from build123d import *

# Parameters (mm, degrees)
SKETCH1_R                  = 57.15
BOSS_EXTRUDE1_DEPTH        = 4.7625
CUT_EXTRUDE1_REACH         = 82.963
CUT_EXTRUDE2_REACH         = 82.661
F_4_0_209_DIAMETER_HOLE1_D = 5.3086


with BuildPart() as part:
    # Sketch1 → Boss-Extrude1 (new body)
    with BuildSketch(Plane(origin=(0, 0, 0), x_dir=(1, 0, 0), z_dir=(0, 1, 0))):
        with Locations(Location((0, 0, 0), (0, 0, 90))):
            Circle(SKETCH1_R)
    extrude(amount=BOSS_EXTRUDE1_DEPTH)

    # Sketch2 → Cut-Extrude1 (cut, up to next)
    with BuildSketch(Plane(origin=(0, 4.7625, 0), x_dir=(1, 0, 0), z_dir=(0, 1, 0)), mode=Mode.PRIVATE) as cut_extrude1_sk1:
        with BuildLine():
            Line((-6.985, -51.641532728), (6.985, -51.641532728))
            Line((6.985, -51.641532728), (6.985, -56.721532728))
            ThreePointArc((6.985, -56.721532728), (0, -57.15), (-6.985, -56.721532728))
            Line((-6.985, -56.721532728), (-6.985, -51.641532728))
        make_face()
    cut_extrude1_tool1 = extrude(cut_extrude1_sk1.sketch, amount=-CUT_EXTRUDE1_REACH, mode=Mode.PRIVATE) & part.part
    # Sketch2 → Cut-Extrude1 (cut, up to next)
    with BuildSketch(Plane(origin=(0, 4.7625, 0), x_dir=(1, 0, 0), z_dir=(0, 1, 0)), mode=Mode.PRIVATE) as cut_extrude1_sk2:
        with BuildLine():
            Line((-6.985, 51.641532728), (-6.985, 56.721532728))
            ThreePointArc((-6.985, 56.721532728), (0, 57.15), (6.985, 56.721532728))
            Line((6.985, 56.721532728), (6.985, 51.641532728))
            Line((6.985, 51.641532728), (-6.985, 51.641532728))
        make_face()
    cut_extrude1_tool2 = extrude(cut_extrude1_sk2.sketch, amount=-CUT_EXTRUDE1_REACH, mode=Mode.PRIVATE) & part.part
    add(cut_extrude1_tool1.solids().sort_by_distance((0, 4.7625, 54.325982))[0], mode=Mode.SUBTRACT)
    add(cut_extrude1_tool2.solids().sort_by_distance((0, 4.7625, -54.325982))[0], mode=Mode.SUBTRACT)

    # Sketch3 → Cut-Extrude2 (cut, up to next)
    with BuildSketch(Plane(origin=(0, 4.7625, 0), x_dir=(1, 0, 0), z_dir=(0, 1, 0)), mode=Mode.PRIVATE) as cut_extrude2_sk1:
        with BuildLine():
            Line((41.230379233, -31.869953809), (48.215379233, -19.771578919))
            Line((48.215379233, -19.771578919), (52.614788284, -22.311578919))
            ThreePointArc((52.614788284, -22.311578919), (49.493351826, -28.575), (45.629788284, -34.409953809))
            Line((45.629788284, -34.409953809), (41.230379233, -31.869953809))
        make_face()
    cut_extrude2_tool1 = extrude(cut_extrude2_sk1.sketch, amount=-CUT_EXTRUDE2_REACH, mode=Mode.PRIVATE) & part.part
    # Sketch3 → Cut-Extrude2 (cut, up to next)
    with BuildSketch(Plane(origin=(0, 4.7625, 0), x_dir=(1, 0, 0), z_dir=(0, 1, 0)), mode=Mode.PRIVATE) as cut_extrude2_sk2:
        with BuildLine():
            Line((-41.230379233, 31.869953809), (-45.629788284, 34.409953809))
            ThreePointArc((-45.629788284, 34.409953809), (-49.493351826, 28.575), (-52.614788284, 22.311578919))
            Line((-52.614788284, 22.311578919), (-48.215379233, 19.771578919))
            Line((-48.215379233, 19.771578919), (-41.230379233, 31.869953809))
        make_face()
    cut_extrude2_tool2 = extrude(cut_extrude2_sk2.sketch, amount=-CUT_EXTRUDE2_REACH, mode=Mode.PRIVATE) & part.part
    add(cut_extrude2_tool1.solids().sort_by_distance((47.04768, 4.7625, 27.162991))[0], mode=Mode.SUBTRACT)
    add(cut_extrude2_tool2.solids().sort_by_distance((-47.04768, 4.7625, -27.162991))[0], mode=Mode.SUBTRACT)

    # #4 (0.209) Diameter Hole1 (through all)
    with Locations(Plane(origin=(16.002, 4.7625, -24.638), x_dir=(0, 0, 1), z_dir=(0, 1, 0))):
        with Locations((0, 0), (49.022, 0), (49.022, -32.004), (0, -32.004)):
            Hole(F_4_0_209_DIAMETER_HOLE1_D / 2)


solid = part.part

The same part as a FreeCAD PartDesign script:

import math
import FreeCAD as App
import Part
import Sketcher

V = App.Vector
Q = App.Units.Quantity

doc = App.newDocument("Part")
body = doc.addObject("PartDesign::Body", "Body")

# Sketch on XZ plane
sketch1 = body.newObject("Sketcher::SketchObject", "Sketch")
sketch1.AttachmentSupport = (doc.getObject("XZ_Plane"), [""])
sketch1.MapMode = "FlatFace"
sketch1.addGeometry(Part.Circle(V(0, 0, 0), V(0, 0, 1), 57), False)
sketch1.addConstraint([
    Sketcher.Constraint("Coincident", 0, 3, -1, 1),
    Sketcher.Constraint("Diameter", 0, Q("4.5 in")),
])
pad1 = body.newObject("PartDesign::Pad", "Pad")
pad1.Profile = sketch1
pad1.Length = Q("0.1875 in")
pad1.Reversed = True

# Sketch on XZ plane
sketch2 = body.newObject("Sketcher::SketchObject", "Sketch001")
sketch2.AttachmentSupport = (doc.getObject("XZ_Plane"), [""])
sketch2.MapMode = "FlatFace"
sketch2.AttachmentOffset = App.Placement(V(0, 0, -0.1875 * 25.4), App.Rotation())
sketch2.addGeometry([
    Part.LineSegment(V(7, 52, 0), V(-7, 52, 0)),
    Part.LineSegment(V(-7, 52, 0), V(-7, 57, 0)),
    Part.ArcOfCircle(Part.Circle(V(0, 0, 0), V(0, 0, 1), 57), math.radians(82.98), math.radians(97.02)),
    Part.LineSegment(V(7, 57, 0), V(7, 52, 0)),
], False)
sketch2.addConstraint([
    Sketcher.Constraint("Coincident", 0, 2, 1, 1),
    Sketcher.Constraint("Coincident", 1, 2, 2, 2),
    Sketcher.Constraint("Coincident", 2, 1, 3, 1),
    Sketcher.Constraint("Coincident", 3, 2, 0, 1),
    Sketcher.Constraint("Horizontal", 0),
    Sketcher.Constraint("Vertical", 1),
    Sketcher.Constraint("Vertical", 3),
    Sketcher.Constraint("Coincident", 2, 3, -1, 1),
    Sketcher.Constraint("Horizontal", 1, 2, 2, 1),
    Sketcher.Constraint("Radius", 2, Q("2.25 in")),
    Sketcher.Constraint("DistanceY", 1, 1, 1, 2, Q("0.2 in")),
    Sketcher.Constraint("DistanceX", 0, 2, 0, 1, Q("0.55 in")),
])
pocket1 = body.newObject("PartDesign::Pocket", "Pocket")
pocket1.Profile = sketch2
pocket1.Type = "UpToFirst"
pocket1.Reversed = True

# Sketch on XZ plane
sketch3 = body.newObject("Sketcher::SketchObject", "Sketch002")
sketch3.AttachmentSupport = (doc.getObject("XZ_Plane"), [""])
sketch3.MapMode = "FlatFace"
sketch3.AttachmentOffset = App.Placement(V(0, 0, -0.1875 * 25.4), App.Rotation())
sketch3.addGeometry([
    Part.LineSegment(V(-7, -57, 0), V(-7, -52, 0)),
    Part.LineSegment(V(-7, -52, 0), V(7, -52, 0)),
    Part.LineSegment(V(7, -52, 0), V(7, -57, 0)),
    Part.ArcOfCircle(Part.Circle(V(0, 0, 0), V(0, 0, 1), 57), math.radians(-97.02), math.radians(-82.98)),
], False)
sketch3.addConstraint([
    Sketcher.Constraint("Coincident", 0, 2, 1, 1),
    Sketcher.Constraint("Coincident", 1, 2, 2, 1),
    Sketcher.Constraint("Coincident", 2, 2, 3, 2),
    Sketcher.Constraint("Coincident", 3, 1, 0, 1),
    Sketcher.Constraint("Vertical", 0),
    Sketcher.Constraint("Horizontal", 1),
    Sketcher.Constraint("Vertical", 2),
    Sketcher.Constraint("Coincident", 3, 3, -1, 1),
    Sketcher.Constraint("Horizontal", 2, 2, 3, 1),
    Sketcher.Constraint("Radius", 3, Q("2.25 in")),
    Sketcher.Constraint("DistanceY", 0, 1, 0, 2, Q("0.2 in")),
    Sketcher.Constraint("DistanceX", 1, 1, 1, 2, Q("0.55 in")),
])
pocket2 = body.newObject("PartDesign::Pocket", "Pocket001")
pocket2.Profile = sketch3
pocket2.Type = "UpToFirst"
pocket2.Reversed = True

# Sketch on XZ plane
sketch4 = body.newObject("Sketcher::SketchObject", "Sketch003")
sketch4.AttachmentSupport = (doc.getObject("XZ_Plane"), [""])
sketch4.MapMode = "FlatFace"
sketch4.AttachmentOffset = App.Placement(V(0, 0, -0.1875 * 25.4), App.Rotation())
sketch4.addGeometry([
    Part.LineSegment(V(48, 20, 0), V(41, 32, 0)),
    Part.LineSegment(V(41, 32, 0), V(46, 34, 0)),
    Part.ArcOfCircle(Part.Circle(V(0, 0, 0), V(0, 0, 1), 57), math.radians(22.98), math.radians(37.02)),
    Part.LineSegment(V(53, 22, 0), V(48, 20, 0)),
], False)
sketch4.addConstraint([
    Sketcher.Constraint("Coincident", 0, 2, 1, 1),
    Sketcher.Constraint("Coincident", 1, 2, 2, 2),
    Sketcher.Constraint("Coincident", 2, 1, 3, 1),
    Sketcher.Constraint("Coincident", 3, 2, 0, 1),
    Sketcher.Constraint("Coincident", 2, 3, -1, 1),
    Sketcher.Constraint("Perpendicular", 0, 1),
    Sketcher.Constraint("Parallel", 1, 3),
    Sketcher.Constraint("Equal", 1, 3),
    Sketcher.Constraint("Radius", 2, Q("2.25 in")),
    Sketcher.Constraint("Angle", 0, Q("120 deg")),
    Sketcher.Constraint("Distance", 1, Q("0.2 in")),
    Sketcher.Constraint("Distance", 0, Q("0.55 in")),
])
pocket3 = body.newObject("PartDesign::Pocket", "Pocket002")
pocket3.Profile = sketch4
pocket3.Type = "UpToFirst"
pocket3.Reversed = True

# Sketch on XZ plane
sketch5 = body.newObject("Sketcher::SketchObject", "Sketch004")
sketch5.AttachmentSupport = (doc.getObject("XZ_Plane"), [""])
sketch5.MapMode = "FlatFace"
sketch5.AttachmentOffset = App.Placement(V(0, 0, -0.1875 * 25.4), App.Rotation())
sketch5.addGeometry([
    Part.LineSegment(V(-41, -32, 0), V(-46, -34, 0)),
    Part.ArcOfCircle(Part.Circle(V(0, 0, 0), V(0, 0, 1), 57), math.radians(-157.02), math.radians(-142.98)),
    Part.LineSegment(V(-53, -22, 0), V(-48, -20, 0)),
    Part.LineSegment(V(-48, -20, 0), V(-41, -32, 0)),
], False)
sketch5.addConstraint([
    Sketcher.Constraint("Coincident", 0, 2, 1, 2),
    Sketcher.Constraint("Coincident", 1, 1, 2, 1),
    Sketcher.Constraint("Coincident", 2, 2, 3, 1),
    Sketcher.Constraint("Coincident", 3, 2, 0, 1),
    Sketcher.Constraint("Coincident", 1, 3, -1, 1),
    Sketcher.Constraint("Parallel", 0, 2),
    Sketcher.Constraint("Perpendicular", 2, 3),
    Sketcher.Constraint("Equal", 0, 2),
    Sketcher.Constraint("Radius", 1, Q("2.25 in")),
    Sketcher.Constraint("Angle", 0, Q("-150 deg")),
    Sketcher.Constraint("Distance", 0, Q("0.2 in")),
    Sketcher.Constraint("Distance", 3, Q("0.55 in")),
])
pocket4 = body.newObject("PartDesign::Pocket", "Pocket003")
pocket4.Profile = sketch5
pocket4.Type = "UpToFirst"
pocket4.Reversed = True

# Sketch on XZ plane
sketch6 = body.newObject("Sketcher::SketchObject", "Sketch005")
sketch6.AttachmentSupport = (doc.getObject("XZ_Plane"), [""])
sketch6.MapMode = "FlatFace"
sketch6.AttachmentOffset = App.Placement(V(0, 0, -0.1875 * 25.4), App.Rotation())
sketch6.addGeometry([
    Part.Circle(V(16, -24.6, 0), V(0, 0, 1), 2.7),
    Part.Circle(V(16, 24.4, 0), V(0, 0, 1), 2.7),
    Part.Circle(V(-16, 24.4, 0), V(0, 0, 1), 2.7),
    Part.Circle(V(-16, -24.6, 0), V(0, 0, 1), 2.7),
], False)
sketch6.addConstraint([
    Sketcher.Constraint("Equal", 0, 1),
    Sketcher.Constraint("Equal", 1, 2),
    Sketcher.Constraint("Equal", 2, 3),
    Sketcher.Constraint("Symmetric", 1, 3, 2, 3, -2),
    Sketcher.Constraint("Symmetric", 0, 3, 3, 3, -2),
    Sketcher.Constraint("Vertical", 0, 3, 1, 3),
    Sketcher.Constraint("Diameter", 0, Q("0.209 in")),
    Sketcher.Constraint("DistanceX", -1, 1, 0, 3, Q("0.63 in")),
    Sketcher.Constraint("DistanceY", 0, 3, -1, 1, Q("0.97 in")),
    Sketcher.Constraint("DistanceY", -1, 1, 1, 3, Q("0.96 in")),
])
doc.recompute()
hole = body.newObject("PartDesign::Hole", "Hole")
hole.Profile = sketch6
hole.ThreadType = "None"
hole.Diameter = Q("0.209 in")
hole.DepthType = "ThroughAll"
hole.Reversed = True

doc.recompute()
